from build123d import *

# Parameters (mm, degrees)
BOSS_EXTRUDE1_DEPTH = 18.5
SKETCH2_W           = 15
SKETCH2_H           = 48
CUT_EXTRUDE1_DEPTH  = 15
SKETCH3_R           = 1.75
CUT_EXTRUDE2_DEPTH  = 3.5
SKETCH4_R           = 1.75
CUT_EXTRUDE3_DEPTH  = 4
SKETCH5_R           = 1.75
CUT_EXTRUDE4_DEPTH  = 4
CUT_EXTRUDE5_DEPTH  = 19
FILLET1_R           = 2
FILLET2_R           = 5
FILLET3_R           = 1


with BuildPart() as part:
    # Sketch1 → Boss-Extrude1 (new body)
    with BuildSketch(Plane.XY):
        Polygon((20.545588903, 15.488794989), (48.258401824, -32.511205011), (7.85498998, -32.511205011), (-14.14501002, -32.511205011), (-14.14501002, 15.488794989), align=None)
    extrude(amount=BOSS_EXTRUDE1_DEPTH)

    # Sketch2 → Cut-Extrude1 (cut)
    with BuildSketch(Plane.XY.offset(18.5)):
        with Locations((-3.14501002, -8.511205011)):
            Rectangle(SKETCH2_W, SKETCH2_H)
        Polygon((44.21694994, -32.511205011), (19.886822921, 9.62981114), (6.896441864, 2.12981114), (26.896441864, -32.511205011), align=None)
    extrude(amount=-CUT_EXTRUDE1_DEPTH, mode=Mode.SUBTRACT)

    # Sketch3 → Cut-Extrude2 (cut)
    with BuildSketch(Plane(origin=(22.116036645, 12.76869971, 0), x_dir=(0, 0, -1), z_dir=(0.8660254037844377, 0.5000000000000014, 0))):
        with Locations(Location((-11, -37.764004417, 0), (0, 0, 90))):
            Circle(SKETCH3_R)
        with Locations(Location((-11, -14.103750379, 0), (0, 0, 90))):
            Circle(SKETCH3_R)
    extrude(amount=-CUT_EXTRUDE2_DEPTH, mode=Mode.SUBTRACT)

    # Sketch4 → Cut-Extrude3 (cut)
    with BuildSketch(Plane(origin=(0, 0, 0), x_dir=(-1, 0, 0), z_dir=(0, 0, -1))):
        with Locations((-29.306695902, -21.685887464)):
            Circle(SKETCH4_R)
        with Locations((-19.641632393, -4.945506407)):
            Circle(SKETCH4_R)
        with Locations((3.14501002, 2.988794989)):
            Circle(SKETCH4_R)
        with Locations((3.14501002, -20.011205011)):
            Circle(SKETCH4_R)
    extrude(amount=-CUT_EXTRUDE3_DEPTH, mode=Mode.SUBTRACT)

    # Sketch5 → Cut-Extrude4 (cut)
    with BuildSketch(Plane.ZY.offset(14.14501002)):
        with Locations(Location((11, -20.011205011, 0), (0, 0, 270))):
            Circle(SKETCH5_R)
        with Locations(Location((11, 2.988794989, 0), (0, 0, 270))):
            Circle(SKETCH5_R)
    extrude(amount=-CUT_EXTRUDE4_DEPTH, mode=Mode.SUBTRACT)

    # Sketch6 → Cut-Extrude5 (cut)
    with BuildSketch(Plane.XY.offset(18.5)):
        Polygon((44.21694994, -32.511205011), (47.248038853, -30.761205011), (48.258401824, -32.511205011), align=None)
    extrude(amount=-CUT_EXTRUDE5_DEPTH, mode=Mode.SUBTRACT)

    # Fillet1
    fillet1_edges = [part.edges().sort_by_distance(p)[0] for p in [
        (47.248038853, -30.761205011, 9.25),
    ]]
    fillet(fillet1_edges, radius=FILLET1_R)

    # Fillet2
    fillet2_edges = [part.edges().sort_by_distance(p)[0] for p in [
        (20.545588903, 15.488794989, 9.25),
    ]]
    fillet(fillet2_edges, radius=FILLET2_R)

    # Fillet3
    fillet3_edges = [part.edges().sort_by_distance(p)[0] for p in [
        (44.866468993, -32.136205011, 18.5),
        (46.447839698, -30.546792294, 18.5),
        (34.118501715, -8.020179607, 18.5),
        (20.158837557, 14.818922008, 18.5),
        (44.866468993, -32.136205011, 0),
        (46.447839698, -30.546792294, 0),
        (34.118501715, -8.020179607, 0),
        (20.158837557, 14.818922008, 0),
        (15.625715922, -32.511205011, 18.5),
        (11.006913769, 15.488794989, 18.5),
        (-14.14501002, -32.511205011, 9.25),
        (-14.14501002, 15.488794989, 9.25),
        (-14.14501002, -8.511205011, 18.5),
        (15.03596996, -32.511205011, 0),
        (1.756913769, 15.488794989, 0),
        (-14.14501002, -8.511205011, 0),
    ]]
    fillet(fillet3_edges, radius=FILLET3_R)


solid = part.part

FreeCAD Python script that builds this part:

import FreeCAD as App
import Part
import Sketcher
Q = App.Units.Quantity


def edges_at(feature, points):
    """Names of the edges that pass closest to the given points."""
    edges = feature.Shape.Edges
    near = lambda p: min(range(len(edges)), key=lambda i: edges[i].distToShape(Part.Vertex(*p))[0])
    return sorted({f"Edge{near(p) + 1}" for p in points})


def add_polygon(sketch, points):
    """Adds a closed chain of lines whose ends are joined by coincident constraints."""
    first, n = sketch.GeometryCount, len(points)
    for a, b in zip(points, points[1:] + points[:1]):
        sketch.addGeometry(Part.LineSegment(App.Vector(*a, 0), App.Vector(*b, 0)), False)
    for i in range(n):
        sketch.addConstraint(Sketcher.Constraint("Coincident", first + i, 2, first + (i + 1) % n, 1))

doc = App.newDocument("Part")
body = doc.addObject("PartDesign::Body", "Body")

sketch1 = body.newObject("Sketcher::SketchObject", "Sketch")
sketch1.AttachmentSupport = (doc.getObject("XY_Plane"), [""])
sketch1.MapMode = "FlatFace"
add_polygon(sketch1, [(48, -33), (21, 15), (-14, 15), (-14, -33)])
sketch1.addConstraint(Sketcher.Constraint("Horizontal", 1))
sketch1.addConstraint(Sketcher.Constraint("Vertical", 2))
sketch1.addConstraint(Sketcher.Constraint("Horizontal", 3))
sketch1.addConstraint(Sketcher.Constraint("DistanceY", 2, 2, 2, 1, Q("48 mm")))
sketch1.addConstraint(Sketcher.Constraint("Angle", 0, Q("120 deg")))
sketch1.addConstraint(Sketcher.Constraint("DistanceX", 1, 2, 1, 1, Q("34.690599 mm")))
sketch1.addConstraint(Sketcher.Constraint("DistanceX", -1, 1, 3, 2, Q("48.258402 mm")))
sketch1.addConstraint(Sketcher.Constraint("DistanceY", -1, 1, 0, 2, Q("15.488795 mm")))
pad1 = body.newObject("PartDesign::Pad", "Pad")
pad1.Profile = sketch1
pad1.Length = 18.5

sketch2 = body.newObject("Sketcher::SketchObject", "Sketch001")
sketch2.AttachmentSupport = (doc.getObject("XY_Plane"), [""])
sketch2.MapMode = "FlatFace"
sketch2.AttachmentOffset = App.Placement(App.Vector(0, 0, 18.5), App.Rotation())
add_polygon(sketch2, [(-11, 15), (-11, -33), (4, -33), (4, 15)])
add_polygon(sketch2, [(44, -33), (20, 10), (7, 2), (27, -33)])
sketch2.addConstraint(Sketcher.Constraint("Vertical", 0))
sketch2.addConstraint(Sketcher.Constraint("Horizontal", 1))
sketch2.addConstraint(Sketcher.Constraint("Vertical", 2))
sketch2.addConstraint(Sketcher.Constraint("Horizontal", 3))
sketch2.addConstraint(Sketcher.Constraint("Horizontal", 7))
sketch2.addConstraint(Sketcher.Constraint("Perpendicular", 4, 5))
sketch2.addConstraint(Sketcher.Constraint("Perpendicular", 5, 6))
sketch2.addConstraint(Sketcher.Constraint("Horizontal", 1, 2, 6, 2))
sketch2.addConstraint(Sketcher.Constraint("DistanceX", 1, 1, 1, 2, Q("15 mm")))
sketch2.addConstraint(Sketcher.Constraint("DistanceY", 0, 2, 0, 1, Q("48 mm")))
sketch2.addConstraint(Sketcher.Constraint("Angle", 4, Q("120 deg")))
sketch2.addConstraint(Sketcher.Constraint("Distance", 5, Q("15 mm")))
sketch2.addConstraint(Sketcher.Constraint("Distance", 6, Q("40 mm")))
sketch2.addConstraint(Sketcher.Constraint("DistanceX", 0, 2, -1, 1, Q("10.64501 mm")))
sketch2.addConstraint(Sketcher.Constraint("DistanceY", -1, 1, 4, 2, Q("9.629811 mm")))
sketch2.addConstraint(Sketcher.Constraint("DistanceX", -1, 1, 5, 2, Q("6.896442 mm")))
pocket1 = body.newObject("PartDesign::Pocket", "Pocket")
pocket1.Profile = sketch2
pocket1.Length = 15

sketch3 = body.newObject("Sketcher::SketchObject", "Sketch002")
sketch3.Placement = App.Placement(App.Vector(22.116037, 12.7687, 0), App.Rotation(App.Vector(0, 0, -1), App.Vector(-0.5, 0.866025404, 0), App.Vector(0.866025404, 0.5, 0), "ZXY"))
sketch3.addGeometry(Part.Circle(App.Vector(-11, -37.8, 0), App.Vector(0, 0, 1), 1.8), False)
sketch3.addGeometry(Part.Circle(App.Vector(-11, -14.1, 0), App.Vector(0, 0, 1), 1.8), False)
sketch3.addConstraint(Sketcher.Constraint("Equal", 0, 1))
sketch3.addConstraint(Sketcher.Constraint("Vertical", 0, 3, 1, 3))
sketch3.addConstraint(Sketcher.Constraint("Diameter", 0, Q("3.5 mm")))
sketch3.addConstraint(Sketcher.Constraint("DistanceX", 0, 3, -1, 1, Q("11 mm")))
sketch3.addConstraint(Sketcher.Constraint("DistanceY", 1, 3, -1, 1, Q("14.10375 mm")))
sketch3.addConstraint(Sketcher.Constraint("DistanceY", 0, 3, -1, 1, Q("37.764004 mm")))
pocket2 = body.newObject("PartDesign::Pocket", "Pocket001")
pocket2.Profile = sketch3
pocket2.Length = 3.5

sketch4 = body.newObject("Sketcher::SketchObject", "Sketch003")
sketch4.AttachmentSupport = (doc.getObject("XY_Plane"), [""])
sketch4.MapMode = "FlatFace"
sketch4.addGeometry(Part.Circle(App.Vector(29.3, -21.7, 0), App.Vector(0, 0, 1), 1.8), False)
sketch4.addGeometry(Part.Circle(App.Vector(19.6, -4.9, 0), App.Vector(0, 0, 1), 1.8), False)
sketch4.addGeometry(Part.Circle(App.Vector(-3.1, 3, 0), App.Vector(0, 0, 1), 1.8), False)
sketch4.addGeometry(Part.Circle(App.Vector(-3.1, -20, 0), App.Vector(0, 0, 1), 1.8), False)
sketch4.addConstraint(Sketcher.Constraint("Equal", 0, 1))
sketch4.addConstraint(Sketcher.Constraint("Equal", 1, 2))
sketch4.addConstraint(Sketcher.Constraint("Equal", 2, 3))
sketch4.addConstraint(Sketcher.Constraint("Vertical", 2, 3, 3, 3))
sketch4.addConstraint(Sketcher.Constraint("Diameter", 0, Q("3.5 mm")))
sketch4.addConstraint(Sketcher.Constraint("DistanceY", 3, 3, 2, 3, Q("23 mm")))
sketch4.addConstraint(Sketcher.Constraint("DistanceY", 1, 3, 2, 3, Q("7.934301 mm")))
sketch4.addConstraint(Sketcher.Constraint("DistanceX", 2, 3, -1, 1, Q("3.14501 mm")))
sketch4.addConstraint(Sketcher.Constraint("DistanceY", 0, 3, 1, 3, Q("16.740381 mm")))
sketch4.addConstraint(Sketcher.Constraint("DistanceX", -1, 1, 0, 3, Q("29.306696 mm")))
sketch4.addConstraint(Sketcher.Constraint("DistanceY", 0, 3, -1, 1, Q("21.685887 mm")))
sketch4.addConstraint(Sketcher.Constraint("DistanceX", -1, 1, 1, 3, Q("19.641632 mm")))
pocket3 = body.newObject("PartDesign::Pocket", "Pocket002")
pocket3.Profile = sketch4
pocket3.Length = 4
pocket3.Reversed = True

sketch5 = body.newObject("Sketcher::SketchObject", "Sketch004")
sketch5.AttachmentSupport = (doc.getObject("YZ_Plane"), [""])
sketch5.MapMode = "FlatFace"
sketch5.AttachmentOffset = App.Placement(App.Vector(0, 0, -14.14501), App.Rotation())
sketch5.addGeometry(Part.Circle(App.Vector(-20, 11, 0), App.Vector(0, 0, 1), 1.8), False)
sketch5.addGeometry(Part.Circle(App.Vector(3, 11, 0), App.Vector(0, 0, 1), 1.8), False)
sketch5.addConstraint(Sketcher.Constraint("Equal", 0, 1))
sketch5.addConstraint(Sketcher.Constraint("Horizontal", 0, 3, 1, 3))
sketch5.addConstraint(Sketcher.Constraint("Diameter", 0, Q("3.5 mm")))
sketch5.addConstraint(Sketcher.Constraint("DistanceY", -1, 1, 0, 3, Q("11 mm")))
sketch5.addConstraint(Sketcher.Constraint("DistanceX", 0, 3, 1, 3, Q("23 mm")))
sketch5.addConstraint(Sketcher.Constraint("DistanceX", 0, 3, -1, 1, Q("20.011205 mm")))
pocket4 = body.newObject("PartDesign::Pocket", "Pocket003")
pocket4.Profile = sketch5
pocket4.Length = 4
pocket4.Reversed = True

sketch6 = body.newObject("Sketcher::SketchObject", "Sketch005")
sketch6.AttachmentSupport = (doc.getObject("XY_Plane"), [""])
sketch6.MapMode = "FlatFace"
sketch6.AttachmentOffset = App.Placement(App.Vector(0, 0, 18.5), App.Rotation())
add_polygon(sketch6, [(47.2, -30.8), (44.2, -32.5), (48.3, -32.5)])
sketch6.addConstraint(Sketcher.Constraint("Horizontal", 1))
sketch6.addConstraint(Sketcher.Constraint("Perpendicular", 0, 2))
sketch6.addConstraint(Sketcher.Constraint("Angle", 0, Q("-150 deg")))
sketch6.addConstraint(Sketcher.Constraint("Distance", 0, Q("3.5 mm")))
sketch6.addConstraint(Sketcher.Constraint("DistanceX", -1, 1, 1, 2, Q("48.258402 mm")))
sketch6.addConstraint(Sketcher.Constraint("DistanceY", 0, 2, -1, 1, Q("32.511205 mm")))
pocket5 = body.newObject("PartDesign::Pocket", "Pocket004")
pocket5.Profile = sketch6
pocket5.Length = 19
doc.recompute()

fillet = body.newObject("PartDesign::Fillet", "Fillet")
fillet.Base = (pocket5, edges_at(pocket5, [(47.248, -30.761, 9.25)]))
fillet.Radius = 2
doc.recompute()

fillet2 = body.newObject("PartDesign::Fillet", "Fillet001")
fillet2.Base = (fillet, edges_at(fillet, [(20.546, 15.489, 9.25)]))
fillet2.Radius = 5
doc.recompute()

fillet3 = body.newObject("PartDesign::Fillet", "Fillet002")
fillet3.Base = (fillet2, edges_at(fillet2, [
    (44.866, -32.136, 18.5),
    (46.448, -30.547, 18.5),
    (34.119, -8.02, 18.5),
    (20.159, 14.819, 18.5),
    (44.866, -32.136, 0),
    (46.448, -30.547, 0),
    (34.119, -8.02, 0),
    (20.159, 14.819, 0),
    (15.626, -32.511, 18.5),
    (11.007, 15.489, 18.5),
    (-14.145, -32.511, 9.25),
    (-14.145, 15.489, 9.25),
    (-14.145, -8.511, 18.5),
    (15.036, -32.511, 0),
    (1.757, 15.489, 0),
    (-14.145, -8.511, 0),
]))
fillet3.Radius = 1

doc.recompute()
